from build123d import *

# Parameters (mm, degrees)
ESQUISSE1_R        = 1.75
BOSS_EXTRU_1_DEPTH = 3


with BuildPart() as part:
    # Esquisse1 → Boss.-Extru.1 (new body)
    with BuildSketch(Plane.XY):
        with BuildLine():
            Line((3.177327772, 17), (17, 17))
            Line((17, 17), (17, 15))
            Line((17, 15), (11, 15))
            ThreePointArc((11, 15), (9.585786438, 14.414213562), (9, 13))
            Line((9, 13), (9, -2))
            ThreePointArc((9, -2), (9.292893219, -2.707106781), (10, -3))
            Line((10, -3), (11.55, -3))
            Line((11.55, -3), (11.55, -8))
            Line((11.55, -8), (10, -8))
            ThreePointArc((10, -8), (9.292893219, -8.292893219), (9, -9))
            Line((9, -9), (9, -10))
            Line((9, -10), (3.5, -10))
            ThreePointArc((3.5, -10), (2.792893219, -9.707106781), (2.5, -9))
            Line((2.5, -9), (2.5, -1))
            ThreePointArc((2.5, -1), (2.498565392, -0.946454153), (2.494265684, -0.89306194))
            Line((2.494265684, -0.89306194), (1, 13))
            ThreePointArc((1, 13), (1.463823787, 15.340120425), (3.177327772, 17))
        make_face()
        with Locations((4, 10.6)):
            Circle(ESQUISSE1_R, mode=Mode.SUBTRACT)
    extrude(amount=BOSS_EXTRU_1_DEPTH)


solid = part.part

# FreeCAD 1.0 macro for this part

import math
import FreeCAD as App
import Part
import Sketcher

V = App.Vector
Q = App.Units.Quantity

doc = App.newDocument("Part")
body = doc.addObject("PartDesign::Body", "Body")

# Sketch on XY plane
sketch1 = body.newObject("Sketcher::SketchObject", "Sketch")
sketch1.AttachmentSupport = (doc.getObject("XY_Plane"), [""])
sketch1.MapMode = "FlatFace"
sketch1.addGeometry(Part.LineSegment(V(17, 17, 0), V(3.18, 17, 0)), False)
sketch1.addGeometry(Part.ArcOfCircle(Part.Circle(V(4.98, 13.43, 0), V(0, 0, 1), 4), math.radians(117), math.radians(186)), False)
sketch1.addGeometry(Part.LineSegment(V(1, 13, 0), V(2.49, -0.89, 0)), False)
sketch1.addGeometry(Part.ArcOfCircle(Part.Circle(V(1.5, -1, 0), V(0, 0, 1), 1), math.radians(0), math.radians(6.14)), False)
sketch1.addGeometry(Part.LineSegment(V(2.5, -1, 0), V(2.5, -9, 0)), False)
sketch1.addGeometry(Part.ArcOfCircle(Part.Circle(V(3.5, -9, 0), V(0, 0, 1), 1), math.radians(-180), math.radians(-90)), False)
sketch1.addGeometry(Part.LineSegment(V(3.5, -10, 0), V(9, -10, 0)), False)
sketch1.addGeometry(Part.LineSegment(V(9, -10, 0), V(9, -9, 0)), False)
sketch1.addGeometry(Part.ArcOfCircle(Part.Circle(V(10, -9, 0), V(0, 0, 1), 1), math.radians(90), math.radians(180)), False)
sketch1.addGeometry(Part.LineSegment(V(10, -8, 0), V(11.55, -8, 0)), False)
sketch1.addGeometry(Part.LineSegment(V(11.55, -8, 0), V(11.55, -3, 0)), False)
sketch1.addGeometry(Part.LineSegment(V(11.55, -3, 0), V(10, -3, 0)), False)
sketch1.addGeometry(Part.ArcOfCircle(Part.Circle(V(10, -2, 0), V(0, 0, 1), 1), math.radians(-180), math.radians(-90)), False)
sketch1.addGeometry(Part.LineSegment(V(9, -2, 0), V(9, 13, 0)), False)
sketch1.addGeometry(Part.ArcOfCircle(Part.Circle(V(11, 13, 0), V(0, 0, 1), 2), math.radians(90), math.radians(180)), False)
sketch1.addGeometry(Part.LineSegment(V(11, 15, 0), V(17, 15, 0)), False)
sketch1.addGeometry(Part.LineSegment(V(17, 15, 0), V(17, 17, 0)), False)
sketch1.addGeometry(Part.Circle(V(4, 10.6, 0), V(0, 0, 1), 1.75), False)
sketch1.addConstraint(Sketcher.Constraint("Coincident", 0, 2, 1, 1))
sketch1.addConstraint(Sketcher.Constraint("Tangent", 1, 2, 2, 1))
sketch1.addConstraint(Sketcher.Constraint("Tangent", 2, 2, 3, 2))
sketch1.addConstraint(Sketcher.Constraint("Tangent", 3, 1, 4, 1))
sketch1.addConstraint(Sketcher.Constraint("Tangent", 4, 2, 5, 1))
sketch1.addConstraint(Sketcher.Constraint("Tangent", 5, 2, 6, 1))
sketch1.addConstraint(Sketcher.Constraint("Coincident", 6, 2, 7, 1))
sketch1.addConstraint(Sketcher.Constraint("Tangent", 7, 2, 8, 2))
sketch1.addConstraint(Sketcher.Constraint("Tangent", 8, 1, 9, 1))
sketch1.addConstraint(Sketcher.Constraint("Coincident", 9, 2, 10, 1))
sketch1.addConstraint(Sketcher.Constraint("Coincident", 10, 2, 11, 1))
sketch1.addConstraint(Sketcher.Constraint("Tangent", 11, 2, 12, 2))
sketch1.addConstraint(Sketcher.Constraint("Tangent", 12, 1, 13, 1))
sketch1.addConstraint(Sketcher.Constraint("Tangent", 13, 2, 14, 2))
sketch1.addConstraint(Sketcher.Constraint("Tangent", 14, 1, 15, 1))
sketch1.addConstraint(Sketcher.Constraint("Coincident", 15, 2, 16, 1))
sketch1.addConstraint(Sketcher.Constraint("Coincident", 16, 2, 0, 1))
sketch1.addConstraint(Sketcher.Constraint("Horizontal", 0))
sketch1.addConstraint(Sketcher.Constraint("Vertical", 4))
sketch1.addConstraint(Sketcher.Constraint("Horizontal", 6))
sketch1.addConstraint(Sketcher.Constraint("Vertical", 7))
sketch1.addConstraint(Sketcher.Constraint("Horizontal", 9))
sketch1.addConstraint(Sketcher.Constraint("Vertical", 10))
sketch1.addConstraint(Sketcher.Constraint("Horizontal", 11))
sketch1.addConstraint(Sketcher.Constraint("Vertical", 13))
sketch1.addConstraint(Sketcher.Constraint("Horizontal", 15))
sketch1.addConstraint(Sketcher.Constraint("Vertical", 16))
sketch1.addConstraint(Sketcher.Constraint("Equal", 3, 5))
sketch1.addConstraint(Sketcher.Constraint("Equal", 5, 8))
sketch1.addConstraint(Sketcher.Constraint("Equal", 8, 12))
sketch1.addConstraint(Sketcher.Constraint("Horizontal", 5, 3, 8, 3))
sketch1.addConstraint(Sketcher.Constraint("Horizontal", 14, 3, 1, 2))
sketch1.addConstraint(Sketcher.Constraint("Vertical", 8, 3, 12, 3))
sketch1.addConstraint(Sketcher.Constraint("Radius", 1, Q("4 mm")))
sketch1.addConstraint(Sketcher.Constraint("Radius", 3, Q("1 mm")))
sketch1.addConstraint(Sketcher.Constraint("Radius", 14, Q("2 mm")))
sketch1.addConstraint(Sketcher.Constraint("Diameter", 17, Q("3.5 mm")))
sketch1.addConstraint(Sketcher.Constraint("DistanceX", 15, 1, 15, 2, Q("6 mm")))
sketch1.addConstraint(Sketcher.Constraint("DistanceY", 4, 2, 4, 1, Q("8 mm")))
sketch1.addConstraint(Sketcher.Constraint("DistanceY", 10, 1, 10, 2, Q("5 mm")))
sketch1.addConstraint(Sketcher.Constraint("DistanceY", 13, 1, 13, 2, Q("15 mm")))
sketch1.addConstraint(Sketcher.Constraint("DistanceY", 16, 1, 16, 2, Q("2 mm")))
sketch1.addConstraint(Sketcher.Constraint("DistanceX", 6, 1, 6, 2, Q("5.5 mm")))
sketch1.addConstraint(Sketcher.Constraint("DistanceY", 3, 3, -1, 1, Q("1 mm")))
sketch1.addConstraint(Sketcher.Constraint("DistanceX", -1, 1, 8, 3, Q("10 mm")))
sketch1.addConstraint(Sketcher.Constraint("DistanceX", -1, 1, 17, 3, Q("4 mm")))
sketch1.addConstraint(Sketcher.Constraint("DistanceX", -1, 1, 1, 2, Q("1 mm")))
sketch1.addConstraint(Sketcher.Constraint("DistanceX", 9, 1, 9, 2, Q("1.55 mm")))
sketch1.addConstraint(Sketcher.Constraint("DistanceY", -1, 1, 17, 3, Q("10.6 mm")))
pad1 = body.newObject("PartDesign::Pad", "Pad")
pad1.Profile = sketch1
pad1.Length = 3

doc.recompute()
